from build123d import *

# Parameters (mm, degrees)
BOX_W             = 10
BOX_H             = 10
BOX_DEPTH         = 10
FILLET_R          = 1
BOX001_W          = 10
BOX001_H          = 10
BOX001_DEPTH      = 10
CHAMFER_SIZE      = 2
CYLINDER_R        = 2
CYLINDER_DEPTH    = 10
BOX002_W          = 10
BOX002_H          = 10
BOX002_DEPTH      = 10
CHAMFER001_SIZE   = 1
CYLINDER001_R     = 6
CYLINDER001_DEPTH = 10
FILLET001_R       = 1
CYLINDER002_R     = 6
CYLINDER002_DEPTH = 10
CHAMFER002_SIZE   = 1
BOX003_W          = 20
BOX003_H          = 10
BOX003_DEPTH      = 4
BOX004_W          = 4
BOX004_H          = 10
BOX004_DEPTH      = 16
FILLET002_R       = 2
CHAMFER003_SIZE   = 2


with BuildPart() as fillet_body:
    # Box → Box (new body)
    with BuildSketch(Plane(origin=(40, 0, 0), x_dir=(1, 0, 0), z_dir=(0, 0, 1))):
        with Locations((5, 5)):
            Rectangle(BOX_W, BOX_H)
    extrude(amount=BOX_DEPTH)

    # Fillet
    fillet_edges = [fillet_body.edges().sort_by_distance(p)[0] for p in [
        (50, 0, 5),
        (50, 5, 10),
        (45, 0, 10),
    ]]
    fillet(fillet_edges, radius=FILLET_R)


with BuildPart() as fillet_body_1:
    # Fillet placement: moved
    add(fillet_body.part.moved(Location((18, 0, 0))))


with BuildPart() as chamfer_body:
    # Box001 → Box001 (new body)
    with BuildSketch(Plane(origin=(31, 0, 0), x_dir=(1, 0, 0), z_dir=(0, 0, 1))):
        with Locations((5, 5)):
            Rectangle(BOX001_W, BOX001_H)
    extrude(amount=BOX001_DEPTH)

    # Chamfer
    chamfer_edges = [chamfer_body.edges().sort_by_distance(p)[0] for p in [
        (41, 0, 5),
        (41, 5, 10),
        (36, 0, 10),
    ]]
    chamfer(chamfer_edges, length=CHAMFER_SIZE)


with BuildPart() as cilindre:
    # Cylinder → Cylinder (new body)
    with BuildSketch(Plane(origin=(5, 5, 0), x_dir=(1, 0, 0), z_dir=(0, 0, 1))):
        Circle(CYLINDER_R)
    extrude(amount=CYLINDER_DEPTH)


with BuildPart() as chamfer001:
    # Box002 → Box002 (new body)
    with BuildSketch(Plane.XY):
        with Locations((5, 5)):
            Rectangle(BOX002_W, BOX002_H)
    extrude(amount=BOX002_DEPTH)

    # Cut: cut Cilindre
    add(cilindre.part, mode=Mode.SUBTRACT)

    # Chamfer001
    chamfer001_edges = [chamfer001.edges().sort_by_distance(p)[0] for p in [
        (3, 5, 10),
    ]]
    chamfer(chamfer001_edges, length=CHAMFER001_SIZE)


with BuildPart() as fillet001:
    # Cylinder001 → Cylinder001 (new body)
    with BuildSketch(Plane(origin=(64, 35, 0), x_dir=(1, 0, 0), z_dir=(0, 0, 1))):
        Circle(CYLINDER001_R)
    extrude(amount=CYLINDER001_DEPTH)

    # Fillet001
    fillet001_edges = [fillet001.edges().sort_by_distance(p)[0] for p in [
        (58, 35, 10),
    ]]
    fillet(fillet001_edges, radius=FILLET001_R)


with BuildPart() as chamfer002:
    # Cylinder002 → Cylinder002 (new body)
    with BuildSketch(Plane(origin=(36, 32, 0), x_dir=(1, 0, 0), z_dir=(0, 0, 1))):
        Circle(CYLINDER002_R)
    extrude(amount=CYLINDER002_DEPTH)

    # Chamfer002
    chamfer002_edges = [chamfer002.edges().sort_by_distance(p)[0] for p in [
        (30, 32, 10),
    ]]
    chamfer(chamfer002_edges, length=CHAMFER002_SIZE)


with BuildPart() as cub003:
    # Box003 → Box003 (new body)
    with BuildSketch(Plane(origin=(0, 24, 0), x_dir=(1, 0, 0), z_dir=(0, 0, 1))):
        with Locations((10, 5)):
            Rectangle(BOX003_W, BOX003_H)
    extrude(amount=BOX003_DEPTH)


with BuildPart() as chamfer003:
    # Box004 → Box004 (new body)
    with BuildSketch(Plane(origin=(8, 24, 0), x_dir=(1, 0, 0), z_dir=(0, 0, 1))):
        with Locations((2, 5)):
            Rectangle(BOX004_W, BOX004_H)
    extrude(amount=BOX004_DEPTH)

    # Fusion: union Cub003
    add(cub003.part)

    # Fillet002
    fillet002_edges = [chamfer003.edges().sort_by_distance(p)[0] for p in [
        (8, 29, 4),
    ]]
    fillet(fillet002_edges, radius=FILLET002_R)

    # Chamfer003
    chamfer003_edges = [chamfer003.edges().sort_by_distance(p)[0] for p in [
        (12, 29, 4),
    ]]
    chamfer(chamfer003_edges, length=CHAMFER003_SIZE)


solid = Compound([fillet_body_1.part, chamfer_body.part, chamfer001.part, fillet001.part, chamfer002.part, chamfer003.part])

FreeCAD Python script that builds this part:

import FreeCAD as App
import Part
import Sketcher

V = App.Vector
Q = App.Units.Quantity


def edges_at(feature, points):
    """Names of the edges that pass closest to the given points."""
    edges = feature.Shape.Edges
    near = lambda p: min(range(len(edges)), key=lambda i: edges[i].distToShape(Part.Vertex(*p))[0])
    return sorted({f"Edge{near(p) + 1}" for p in points})

doc = App.newDocument("Part")
body = doc.addObject("PartDesign::Body", "Body")

# Sketch on XY plane
sketch1 = body.newObject("Sketcher::SketchObject", "Sketch")
sketch1.AttachmentSupport = (doc.getObject("XY_Plane"), [""])
sketch1.MapMode = "FlatFace"
sketch1.addGeometry(Part.LineSegment(V(40, 10, 0), V(40, 0, 0)), False)
sketch1.addGeometry(Part.LineSegment(V(40, 0, 0), V(50, 0, 0)), False)
sketch1.addGeometry(Part.LineSegment(V(50, 0, 0), V(50, 10, 0)), False)
sketch1.addGeometry(Part.LineSegment(V(50, 10, 0), V(40, 10, 0)), False)
sketch1.addConstraint(Sketcher.Constraint("Coincident", 0, 2, 1, 1))
sketch1.addConstraint(Sketcher.Constraint("Coincident", 1, 2, 2, 1))
sketch1.addConstraint(Sketcher.Constraint("Coincident", 2, 2, 3, 1))
sketch1.addConstraint(Sketcher.Constraint("Coincident", 3, 2, 0, 1))
sketch1.addConstraint(Sketcher.Constraint("Vertical", 0))
sketch1.addConstraint(Sketcher.Constraint("Horizontal", 1))
sketch1.addConstraint(Sketcher.Constraint("Vertical", 2))
sketch1.addConstraint(Sketcher.Constraint("Horizontal", 3))
sketch1.addConstraint(Sketcher.Constraint("PointOnObject", 0, 2, -1))
sketch1.addConstraint(Sketcher.Constraint("Equal", 3, 0))
sketch1.addConstraint(Sketcher.Constraint("DistanceX", 1, 1, 1, 2, Q("10 mm")))
sketch1.addConstraint(Sketcher.Constraint("DistanceX", -1, 1, 0, 2, Q("40 mm")))
pad1 = body.newObject("PartDesign::Pad", "Pad")
pad1.Profile = sketch1
pad1.Length = 10
doc.recompute()

fillet = body.newObject("PartDesign::Fillet", "Fillet")
fillet.Base = (pad1, edges_at(pad1, [(50, 0, 5), (50, 5, 10), (45, 0, 10)]))
fillet.Radius = 1
body2 = doc.addObject("PartDesign::Body", "Body001")
doc.recompute()

body.Placement = App.Placement(V(18, 0, 0), App.Rotation(V(0, 0, 1), 0))
boolean = body2.newObject("PartDesign::Boolean", "Boolean")
boolean.Type = "Fuse"
boolean.addObjects([body])
body3 = doc.addObject("PartDesign::Body", "Body002")

# Sketch on XY plane
sketch2 = body3.newObject("Sketcher::SketchObject", "Sketch001")
sketch2.AttachmentSupport = (doc.getObject("XY_Plane002"), [""])
sketch2.MapMode = "FlatFace"
sketch2.addGeometry(Part.LineSegment(V(31, 10, 0), V(31, 0, 0)), False)
sketch2.addGeometry(Part.LineSegment(V(31, 0, 0), V(41, 0, 0)), False)
sketch2.addGeometry(Part.LineSegment(V(41, 0, 0), V(41, 10, 0)), False)
sketch2.addGeometry(Part.LineSegment(V(41, 10, 0), V(31, 10, 0)), False)
sketch2.addConstraint(Sketcher.Constraint("Coincident", 0, 2, 1, 1))
sketch2.addConstraint(Sketcher.Constraint("Coincident", 1, 2, 2, 1))
sketch2.addConstraint(Sketcher.Constraint("Coincident", 2, 2, 3, 1))
sketch2.addConstraint(Sketcher.Constraint("Coincident", 3, 2, 0, 1))
sketch2.addConstraint(Sketcher.Constraint("Vertical", 0))
sketch2.addConstraint(Sketcher.Constraint("Horizontal", 1))
sketch2.addConstraint(Sketcher.Constraint("Vertical", 2))
sketch2.addConstraint(Sketcher.Constraint("Horizontal", 3))
sketch2.addConstraint(Sketcher.Constraint("PointOnObject", 0, 2, -1))
sketch2.addConstraint(Sketcher.Constraint("Equal", 3, 0))
sketch2.addConstraint(Sketcher.Constraint("DistanceX", 1, 1, 1, 2, Q("10 mm")))
sketch2.addConstraint(Sketcher.Constraint("DistanceX", -1, 1, 0, 2, Q("31 mm")))
pad2 = body3.newObject("PartDesign::Pad", "Pad001")
pad2.Profile = sketch2
pad2.Length = 10
doc.recompute()

chamfer = body3.newObject("PartDesign::Chamfer", "Chamfer")
chamfer.Base = (pad2, edges_at(pad2, [(41, 0, 5), (41, 5, 10), (36, 0, 10)]))
chamfer.Size = 2
body4 = doc.addObject("PartDesign::Body", "Body003")

# Sketch on XY plane
sketch3 = body4.newObject("Sketcher::SketchObject", "Sketch002")
sketch3.AttachmentSupport = (doc.getObject("XY_Plane003"), [""])
sketch3.MapMode = "FlatFace"
sketch3.addGeometry(Part.Circle(V(5, 5, 0), V(0, 0, 1), 2), False)
sketch3.addConstraint(Sketcher.Constraint("Diameter", 0, Q("4 mm")))
sketch3.addConstraint(Sketcher.Constraint("DistanceX", -1, 1, 0, 3, Q("5 mm")))
sketch3.addConstraint(Sketcher.Constraint("DistanceY", -1, 1, 0, 3, Q("5 mm")))
pad3 = body4.newObject("PartDesign::Pad", "Pad002")
pad3.Profile = sketch3
pad3.Length = 10
body5 = doc.addObject("PartDesign::Body", "Body004")

# Sketch on XY plane
sketch4 = body5.newObject("Sketcher::SketchObject", "Sketch003")
sketch4.AttachmentSupport = (doc.getObject("XY_Plane004"), [""])
sketch4.MapMode = "FlatFace"
sketch4.addGeometry(Part.LineSegment(V(0, 10, 0), V(0, 0, 0)), False)
sketch4.addGeometry(Part.LineSegment(V(0, 0, 0), V(10, 0, 0)), False)
sketch4.addGeometry(Part.LineSegment(V(10, 0, 0), V(10, 10, 0)), False)
sketch4.addGeometry(Part.LineSegment(V(10, 10, 0), V(0, 10, 0)), False)
sketch4.addConstraint(Sketcher.Constraint("Coincident", 0, 2, 1, 1))
sketch4.addConstraint(Sketcher.Constraint("Coincident", 1, 2, 2, 1))
sketch4.addConstraint(Sketcher.Constraint("Coincident", 2, 2, 3, 1))
sketch4.addConstraint(Sketcher.Constraint("Coincident", 3, 2, 0, 1))
sketch4.addConstraint(Sketcher.Constraint("Vertical", 0))
sketch4.addConstraint(Sketcher.Constraint("Horizontal", 1))
sketch4.addConstraint(Sketcher.Constraint("Vertical", 2))
sketch4.addConstraint(Sketcher.Constraint("Horizontal", 3))
sketch4.addConstraint(Sketcher.Constraint("Coincident", 0, 2, -1, 1))
sketch4.addConstraint(Sketcher.Constraint("Equal", 3, 0))
sketch4.addConstraint(Sketcher.Constraint("DistanceX", 1, 1, 1, 2, Q("10 mm")))
pad4 = body5.newObject("PartDesign::Pad", "Pad003")
pad4.Profile = sketch4
pad4.Length = 10
doc.recompute()

boolean2 = body5.newObject("PartDesign::Boolean", "Boolean001")
boolean2.Type = "Cut"
boolean2.addObjects([body4])
doc.recompute()

chamfer2 = body5.newObject("PartDesign::Chamfer", "Chamfer001")
chamfer2.Base = (boolean2, edges_at(boolean2, [(3, 5, 10)]))
chamfer2.Size = 1
body6 = doc.addObject("PartDesign::Body", "Body005")

# Sketch on XY plane
sketch5 = body6.newObject("Sketcher::SketchObject", "Sketch004")
sketch5.AttachmentSupport = (doc.getObject("XY_Plane005"), [""])
sketch5.MapMode = "FlatFace"
sketch5.addGeometry(Part.Circle(V(64, 35, 0), V(0, 0, 1), 6), False)
sketch5.addConstraint(Sketcher.Constraint("Diameter", 0, Q("12 mm")))
sketch5.addConstraint(Sketcher.Constraint("DistanceX", -1, 1, 0, 3, Q("64 mm")))
sketch5.addConstraint(Sketcher.Constraint("DistanceY", -1, 1, 0, 3, Q("35 mm")))
pad5 = body6.newObject("PartDesign::Pad", "Pad004")
pad5.Profile = sketch5
pad5.Length = 10
doc.recompute()

fillet2 = body6.newObject("PartDesign::Fillet", "Fillet001")
fillet2.Base = (pad5, edges_at(pad5, [(58, 35, 10)]))
fillet2.Radius = 1
body7 = doc.addObject("PartDesign::Body", "Body006")

# Sketch on XY plane
sketch6 = body7.newObject("Sketcher::SketchObject", "Sketch005")
sketch6.AttachmentSupport = (doc.getObject("XY_Plane006"), [""])
sketch6.MapMode = "FlatFace"
sketch6.addGeometry(Part.Circle(V(36, 32, 0), V(0, 0, 1), 6), False)
sketch6.addConstraint(Sketcher.Constraint("Diameter", 0, Q("12 mm")))
sketch6.addConstraint(Sketcher.Constraint("DistanceX", -1, 1, 0, 3, Q("36 mm")))
sketch6.addConstraint(Sketcher.Constraint("DistanceY", -1, 1, 0, 3, Q("32 mm")))
pad6 = body7.newObject("PartDesign::Pad", "Pad005")
pad6.Profile = sketch6
pad6.Length = 10
doc.recompute()

chamfer3 = body7.newObject("PartDesign::Chamfer", "Chamfer002")
chamfer3.Base = (pad6, edges_at(pad6, [(30, 32, 10)]))
chamfer3.Size = 1
body8 = doc.addObject("PartDesign::Body", "Body007")

# Sketch on XY plane
sketch7 = body8.newObject("Sketcher::SketchObject", "Sketch006")
sketch7.AttachmentSupport = (doc.getObject("XY_Plane007"), [""])
sketch7.MapMode = "FlatFace"
sketch7.addGeometry(Part.LineSegment(V(0, 34, 0), V(0, 24, 0)), False)
sketch7.addGeometry(Part.LineSegment(V(0, 24, 0), V(20, 24, 0)), False)
sketch7.addGeometry(Part.LineSegment(V(20, 24, 0), V(20, 34, 0)), False)
sketch7.addGeometry(Part.LineSegment(V(20, 34, 0), V(0, 34, 0)), False)
sketch7.addConstraint(Sketcher.Constraint("Coincident", 0, 2, 1, 1))
sketch7.addConstraint(Sketcher.Constraint("Coincident", 1, 2, 2, 1))
sketch7.addConstraint(Sketcher.Constraint("Coincident", 2, 2, 3, 1))
sketch7.addConstraint(Sketcher.Constraint("Coincident", 3, 2, 0, 1))
sketch7.addConstraint(Sketcher.Constraint("Vertical", 0))
sketch7.addConstraint(Sketcher.Constraint("Horizontal", 1))
sketch7.addConstraint(Sketcher.Constraint("Vertical", 2))
sketch7.addConstraint(Sketcher.Constraint("Horizontal", 3))
sketch7.addConstraint(Sketcher.Constraint("PointOnObject", 0, 2, -2))
sketch7.addConstraint(Sketcher.Constraint("DistanceX", 1, 1, 1, 2, Q("20 mm")))
sketch7.addConstraint(Sketcher.Constraint("DistanceY", 0, 2, 0, 1, Q("10 mm")))
sketch7.addConstraint(Sketcher.Constraint("DistanceY", -1, 1, 0, 2, Q("24 mm")))
pad7 = body8.newObject("PartDesign::Pad", "Pad006")
pad7.Profile = sketch7
pad7.Length = 4
body9 = doc.addObject("PartDesign::Body", "Body008")

# Sketch on XY plane
sketch8 = body9.newObject("Sketcher::SketchObject", "Sketch007")
sketch8.AttachmentSupport = (doc.getObject("XY_Plane008"), [""])
sketch8.MapMode = "FlatFace"
sketch8.addGeometry(Part.LineSegment(V(8, 34, 0), V(8, 24, 0)), False)
sketch8.addGeometry(Part.LineSegment(V(8, 24, 0), V(12, 24, 0)), False)
sketch8.addGeometry(Part.LineSegment(V(12, 24, 0), V(12, 34, 0)), False)
sketch8.addGeometry(Part.LineSegment(V(12, 34, 0), V(8, 34, 0)), False)
sketch8.addConstraint(Sketcher.Constraint("Coincident", 0, 2, 1, 1))
sketch8.addConstraint(Sketcher.Constraint("Coincident", 1, 2, 2, 1))
sketch8.addConstraint(Sketcher.Constraint("Coincident", 2, 2, 3, 1))
sketch8.addConstraint(Sketcher.Constraint("Coincident", 3, 2, 0, 1))
sketch8.addConstraint(Sketcher.Constraint("Vertical", 0))
sketch8.addConstraint(Sketcher.Constraint("Horizontal", 1))
sketch8.addConstraint(Sketcher.Constraint("Vertical", 2))
sketch8.addConstraint(Sketcher.Constraint("Horizontal", 3))
sketch8.addConstraint(Sketcher.Constraint("DistanceX", 1, 1, 1, 2, Q("4 mm")))
sketch8.addConstraint(Sketcher.Constraint("DistanceY", 0, 2, 0, 1, Q("10 mm")))
sketch8.addConstraint(Sketcher.Constraint("DistanceX", -1, 1, 0, 2, Q("8 mm")))
sketch8.addConstraint(Sketcher.Constraint("DistanceY", -1, 1, 0, 2, Q("24 mm")))
pad8 = body9.newObject("PartDesign::Pad", "Pad007")
pad8.Profile = sketch8
pad8.Length = 16
doc.recompute()

boolean3 = body9.newObject("PartDesign::Boolean", "Boolean002")
boolean3.Type = "Fuse"
boolean3.addObjects([body8])
doc.recompute()

fillet3 = body9.newObject("PartDesign::Fillet", "Fillet002")
fillet3.Base = (boolean3, edges_at(boolean3, [(8, 29, 4)]))
fillet3.Radius = 2
doc.recompute()

chamfer4 = body9.newObject("PartDesign::Chamfer", "Chamfer003")
chamfer4.Base = (fillet3, edges_at(fillet3, [(12, 29, 4)]))
chamfer4.Size = 2

doc.recompute()
